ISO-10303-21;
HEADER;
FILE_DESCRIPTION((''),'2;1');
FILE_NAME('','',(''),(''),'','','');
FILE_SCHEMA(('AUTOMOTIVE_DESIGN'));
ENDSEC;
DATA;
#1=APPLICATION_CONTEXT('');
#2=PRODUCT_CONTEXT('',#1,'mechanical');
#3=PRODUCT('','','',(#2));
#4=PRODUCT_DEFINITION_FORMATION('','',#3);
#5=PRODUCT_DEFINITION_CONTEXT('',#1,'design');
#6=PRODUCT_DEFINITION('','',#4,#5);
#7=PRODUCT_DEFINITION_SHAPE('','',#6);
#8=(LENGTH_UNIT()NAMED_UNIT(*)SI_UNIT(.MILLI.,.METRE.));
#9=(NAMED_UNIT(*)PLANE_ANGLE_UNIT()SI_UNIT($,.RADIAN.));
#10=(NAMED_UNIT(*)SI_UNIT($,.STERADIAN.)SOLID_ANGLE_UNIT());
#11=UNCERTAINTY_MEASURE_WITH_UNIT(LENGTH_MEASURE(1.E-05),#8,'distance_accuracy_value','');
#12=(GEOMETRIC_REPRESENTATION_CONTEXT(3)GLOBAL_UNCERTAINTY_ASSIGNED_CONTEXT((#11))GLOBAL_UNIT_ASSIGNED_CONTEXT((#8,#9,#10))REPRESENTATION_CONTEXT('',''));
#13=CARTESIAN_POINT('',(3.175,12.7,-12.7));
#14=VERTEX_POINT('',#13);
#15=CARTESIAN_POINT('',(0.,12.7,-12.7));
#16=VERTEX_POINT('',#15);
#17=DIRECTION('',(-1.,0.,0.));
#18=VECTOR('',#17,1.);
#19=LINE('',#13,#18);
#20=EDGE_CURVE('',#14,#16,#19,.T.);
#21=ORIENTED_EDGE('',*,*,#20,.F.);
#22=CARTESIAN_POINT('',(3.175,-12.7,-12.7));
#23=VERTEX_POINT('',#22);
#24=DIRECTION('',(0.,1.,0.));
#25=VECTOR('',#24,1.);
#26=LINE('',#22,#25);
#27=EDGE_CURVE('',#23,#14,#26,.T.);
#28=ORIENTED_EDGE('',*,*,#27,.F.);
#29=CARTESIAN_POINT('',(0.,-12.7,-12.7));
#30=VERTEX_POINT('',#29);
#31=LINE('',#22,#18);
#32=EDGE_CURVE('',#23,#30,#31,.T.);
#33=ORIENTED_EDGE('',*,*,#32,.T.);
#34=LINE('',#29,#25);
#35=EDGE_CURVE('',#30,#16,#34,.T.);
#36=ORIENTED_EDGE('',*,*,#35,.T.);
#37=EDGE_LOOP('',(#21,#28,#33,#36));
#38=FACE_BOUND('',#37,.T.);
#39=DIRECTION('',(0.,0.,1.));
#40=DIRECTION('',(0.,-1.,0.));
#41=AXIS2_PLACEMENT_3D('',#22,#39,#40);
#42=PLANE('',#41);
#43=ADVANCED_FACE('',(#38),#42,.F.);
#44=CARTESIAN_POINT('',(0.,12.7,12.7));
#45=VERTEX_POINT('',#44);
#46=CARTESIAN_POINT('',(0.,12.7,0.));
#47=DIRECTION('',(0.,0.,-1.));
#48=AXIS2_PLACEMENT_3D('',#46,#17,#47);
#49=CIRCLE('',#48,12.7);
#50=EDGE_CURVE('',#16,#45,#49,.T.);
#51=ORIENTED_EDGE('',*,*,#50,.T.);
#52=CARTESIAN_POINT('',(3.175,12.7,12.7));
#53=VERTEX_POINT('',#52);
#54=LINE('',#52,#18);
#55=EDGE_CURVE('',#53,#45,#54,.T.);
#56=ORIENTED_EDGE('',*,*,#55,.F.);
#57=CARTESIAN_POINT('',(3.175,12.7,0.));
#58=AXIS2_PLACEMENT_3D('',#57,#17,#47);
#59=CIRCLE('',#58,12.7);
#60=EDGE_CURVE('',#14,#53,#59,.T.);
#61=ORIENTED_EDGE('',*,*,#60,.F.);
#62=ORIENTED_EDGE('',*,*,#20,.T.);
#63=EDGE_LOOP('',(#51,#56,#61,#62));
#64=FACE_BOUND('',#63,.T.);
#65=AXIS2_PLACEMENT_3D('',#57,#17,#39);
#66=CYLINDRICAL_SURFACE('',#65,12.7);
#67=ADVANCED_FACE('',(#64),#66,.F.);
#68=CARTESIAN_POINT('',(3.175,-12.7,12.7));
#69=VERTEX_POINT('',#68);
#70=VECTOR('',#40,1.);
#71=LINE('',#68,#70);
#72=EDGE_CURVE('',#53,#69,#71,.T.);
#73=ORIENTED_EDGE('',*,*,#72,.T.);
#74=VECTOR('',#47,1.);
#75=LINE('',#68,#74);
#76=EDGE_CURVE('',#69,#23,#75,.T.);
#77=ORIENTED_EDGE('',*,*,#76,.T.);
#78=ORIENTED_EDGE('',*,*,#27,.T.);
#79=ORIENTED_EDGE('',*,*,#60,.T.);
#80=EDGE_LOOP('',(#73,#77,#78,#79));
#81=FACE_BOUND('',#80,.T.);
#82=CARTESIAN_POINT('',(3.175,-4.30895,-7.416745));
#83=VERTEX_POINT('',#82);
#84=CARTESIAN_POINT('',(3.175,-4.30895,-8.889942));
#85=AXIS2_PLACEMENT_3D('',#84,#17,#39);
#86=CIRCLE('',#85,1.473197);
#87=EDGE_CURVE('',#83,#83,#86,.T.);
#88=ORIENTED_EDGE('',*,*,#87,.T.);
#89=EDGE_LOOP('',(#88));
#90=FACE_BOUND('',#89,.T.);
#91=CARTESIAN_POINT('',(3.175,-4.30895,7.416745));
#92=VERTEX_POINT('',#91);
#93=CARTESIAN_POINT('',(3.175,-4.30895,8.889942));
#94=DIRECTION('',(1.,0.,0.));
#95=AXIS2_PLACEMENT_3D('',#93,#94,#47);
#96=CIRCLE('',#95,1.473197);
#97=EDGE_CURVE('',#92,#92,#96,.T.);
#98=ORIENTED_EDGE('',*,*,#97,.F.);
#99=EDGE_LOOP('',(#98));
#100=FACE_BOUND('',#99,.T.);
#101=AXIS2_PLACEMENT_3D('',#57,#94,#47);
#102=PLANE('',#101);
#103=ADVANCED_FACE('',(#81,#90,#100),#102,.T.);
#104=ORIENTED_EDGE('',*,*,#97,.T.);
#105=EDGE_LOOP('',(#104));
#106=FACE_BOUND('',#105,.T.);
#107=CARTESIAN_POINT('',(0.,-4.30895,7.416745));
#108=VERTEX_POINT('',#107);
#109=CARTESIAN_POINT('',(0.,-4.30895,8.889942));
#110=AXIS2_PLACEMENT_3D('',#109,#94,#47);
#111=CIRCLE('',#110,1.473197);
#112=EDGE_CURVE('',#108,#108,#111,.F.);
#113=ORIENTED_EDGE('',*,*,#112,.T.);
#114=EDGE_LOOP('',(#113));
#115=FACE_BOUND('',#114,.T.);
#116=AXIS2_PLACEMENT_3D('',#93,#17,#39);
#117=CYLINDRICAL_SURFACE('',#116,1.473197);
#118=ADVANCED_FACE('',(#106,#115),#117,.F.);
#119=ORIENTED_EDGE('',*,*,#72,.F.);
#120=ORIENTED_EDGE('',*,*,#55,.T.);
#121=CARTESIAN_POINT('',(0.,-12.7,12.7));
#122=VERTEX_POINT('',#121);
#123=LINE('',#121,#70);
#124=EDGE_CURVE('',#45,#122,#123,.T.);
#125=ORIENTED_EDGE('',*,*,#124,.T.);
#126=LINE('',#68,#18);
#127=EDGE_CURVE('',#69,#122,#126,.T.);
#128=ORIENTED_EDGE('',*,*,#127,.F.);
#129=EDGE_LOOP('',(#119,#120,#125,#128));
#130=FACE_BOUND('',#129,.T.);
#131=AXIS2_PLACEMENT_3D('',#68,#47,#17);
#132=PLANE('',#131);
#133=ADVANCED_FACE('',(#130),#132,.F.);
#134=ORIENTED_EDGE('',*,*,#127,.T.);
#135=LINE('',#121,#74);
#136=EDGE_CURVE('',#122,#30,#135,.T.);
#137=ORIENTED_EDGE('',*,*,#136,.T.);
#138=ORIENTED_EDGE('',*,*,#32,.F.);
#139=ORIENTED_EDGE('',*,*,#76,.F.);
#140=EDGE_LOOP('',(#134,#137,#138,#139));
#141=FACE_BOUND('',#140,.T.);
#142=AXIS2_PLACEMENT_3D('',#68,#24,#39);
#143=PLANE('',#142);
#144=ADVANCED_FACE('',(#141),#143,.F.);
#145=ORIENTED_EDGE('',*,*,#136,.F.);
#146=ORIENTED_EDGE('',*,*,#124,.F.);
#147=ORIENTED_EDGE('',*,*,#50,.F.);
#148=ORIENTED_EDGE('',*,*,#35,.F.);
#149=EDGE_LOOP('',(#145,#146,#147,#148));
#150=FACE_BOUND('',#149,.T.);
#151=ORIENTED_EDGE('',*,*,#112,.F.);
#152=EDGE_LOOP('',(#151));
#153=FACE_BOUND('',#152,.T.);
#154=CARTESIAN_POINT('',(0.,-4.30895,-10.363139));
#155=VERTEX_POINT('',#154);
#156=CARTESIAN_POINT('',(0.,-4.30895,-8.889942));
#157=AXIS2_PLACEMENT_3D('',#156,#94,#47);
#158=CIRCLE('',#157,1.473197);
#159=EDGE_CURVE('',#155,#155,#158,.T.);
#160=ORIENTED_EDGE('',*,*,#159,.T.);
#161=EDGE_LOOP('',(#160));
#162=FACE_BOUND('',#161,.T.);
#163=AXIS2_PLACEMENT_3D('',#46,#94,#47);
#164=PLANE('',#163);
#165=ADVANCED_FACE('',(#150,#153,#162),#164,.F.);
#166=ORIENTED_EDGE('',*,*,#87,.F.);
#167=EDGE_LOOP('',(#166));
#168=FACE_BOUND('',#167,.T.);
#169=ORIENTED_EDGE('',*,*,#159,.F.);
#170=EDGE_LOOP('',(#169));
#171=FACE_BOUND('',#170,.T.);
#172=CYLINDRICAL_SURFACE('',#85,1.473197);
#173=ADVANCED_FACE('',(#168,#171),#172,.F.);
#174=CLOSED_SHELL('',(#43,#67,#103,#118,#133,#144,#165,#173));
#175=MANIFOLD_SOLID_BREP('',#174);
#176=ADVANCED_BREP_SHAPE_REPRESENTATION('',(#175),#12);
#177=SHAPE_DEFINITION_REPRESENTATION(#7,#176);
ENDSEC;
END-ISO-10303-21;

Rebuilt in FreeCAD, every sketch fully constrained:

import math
import FreeCAD as App
import Part
import Sketcher

V = App.Vector
Q = App.Units.Quantity

doc = App.newDocument("Part")
body = doc.addObject("PartDesign::Body", "Body")

# Sketch on YZ plane
sketch1 = doc.addObject("Sketcher::SketchObject", "Sketch")
body.addObject(sketch1)
sketch1.AttachmentSupport = (doc.YZ_Plane, [""])
sketch1.MapMode = "FlatFace"
sketch1.addGeometry([
    Part.LineSegment(V(-13, 13, 0), V(-13, -13, 0)),
    Part.LineSegment(V(-13, -13, 0), V(13, -13, 0)),
    Part.ArcOfCircle(Part.Circle(V(13, 0, 0), V(0, 0, 1), 13), math.radians(90), math.radians(270)),
    Part.LineSegment(V(13, 13, 0), V(-13, 13, 0)),
], False)
sketch1.addConstraint([
    Sketcher.Constraint("Coincident", 0, 2, 1, 1),
    Sketcher.Constraint("Tangent", 1, 2, 2, 2),
    Sketcher.Constraint("Tangent", 2, 1, 3, 1),
    Sketcher.Constraint("Coincident", 3, 2, 0, 1),
    Sketcher.Constraint("Vertical", 0),
    Sketcher.Constraint("Horizontal", 1),
    Sketcher.Constraint("Horizontal", 3),
    Sketcher.Constraint("Symmetric", 0, 2, 2, 1, -1, 1),
    Sketcher.Constraint("Equal", 3, 0),
    Sketcher.Constraint("Radius", 2, Q("0.5 in")),
])
pad1 = doc.addObject("PartDesign::Pad", "Pad")
body.addObject(pad1)
pad1.Profile = sketch1
pad1.Length = Q("0.125 in")

# Sketch on YZ plane
sketch2 = doc.addObject("Sketcher::SketchObject", "Sketch001")
body.addObject(sketch2)
sketch2.AttachmentSupport = (doc.YZ_Plane, [""])
sketch2.MapMode = "FlatFace"
sketch2.addGeometry(Part.Circle(V(-4.3, -8.9, 0), V(0, 0, 1), 1.5), False)
sketch2.addConstraint([
    Sketcher.Constraint("Diameter", 0, Q("2.946394 mm")),
    Sketcher.Constraint("DistanceX", 0, 3, -1, 1, Q("4.30895 mm")),
    Sketcher.Constraint("DistanceY", 0, 3, -1, 1, Q("8.889942 mm")),
])
pocket1 = doc.addObject("PartDesign::Pocket", "Pocket")
body.addObject(pocket1)
pocket1.Profile = sketch2
pocket1.Length = 38.477973
pocket1.Midplane = True
doc.recompute()

mirrored = doc.addObject("PartDesign::Mirrored", "Mirrored")
body.addObject(mirrored)
mirrored.Originals = [pocket1]
mirrored.MirrorPlane = (doc.XY_Plane, [""])
body.Tip = mirrored

doc.recompute()
